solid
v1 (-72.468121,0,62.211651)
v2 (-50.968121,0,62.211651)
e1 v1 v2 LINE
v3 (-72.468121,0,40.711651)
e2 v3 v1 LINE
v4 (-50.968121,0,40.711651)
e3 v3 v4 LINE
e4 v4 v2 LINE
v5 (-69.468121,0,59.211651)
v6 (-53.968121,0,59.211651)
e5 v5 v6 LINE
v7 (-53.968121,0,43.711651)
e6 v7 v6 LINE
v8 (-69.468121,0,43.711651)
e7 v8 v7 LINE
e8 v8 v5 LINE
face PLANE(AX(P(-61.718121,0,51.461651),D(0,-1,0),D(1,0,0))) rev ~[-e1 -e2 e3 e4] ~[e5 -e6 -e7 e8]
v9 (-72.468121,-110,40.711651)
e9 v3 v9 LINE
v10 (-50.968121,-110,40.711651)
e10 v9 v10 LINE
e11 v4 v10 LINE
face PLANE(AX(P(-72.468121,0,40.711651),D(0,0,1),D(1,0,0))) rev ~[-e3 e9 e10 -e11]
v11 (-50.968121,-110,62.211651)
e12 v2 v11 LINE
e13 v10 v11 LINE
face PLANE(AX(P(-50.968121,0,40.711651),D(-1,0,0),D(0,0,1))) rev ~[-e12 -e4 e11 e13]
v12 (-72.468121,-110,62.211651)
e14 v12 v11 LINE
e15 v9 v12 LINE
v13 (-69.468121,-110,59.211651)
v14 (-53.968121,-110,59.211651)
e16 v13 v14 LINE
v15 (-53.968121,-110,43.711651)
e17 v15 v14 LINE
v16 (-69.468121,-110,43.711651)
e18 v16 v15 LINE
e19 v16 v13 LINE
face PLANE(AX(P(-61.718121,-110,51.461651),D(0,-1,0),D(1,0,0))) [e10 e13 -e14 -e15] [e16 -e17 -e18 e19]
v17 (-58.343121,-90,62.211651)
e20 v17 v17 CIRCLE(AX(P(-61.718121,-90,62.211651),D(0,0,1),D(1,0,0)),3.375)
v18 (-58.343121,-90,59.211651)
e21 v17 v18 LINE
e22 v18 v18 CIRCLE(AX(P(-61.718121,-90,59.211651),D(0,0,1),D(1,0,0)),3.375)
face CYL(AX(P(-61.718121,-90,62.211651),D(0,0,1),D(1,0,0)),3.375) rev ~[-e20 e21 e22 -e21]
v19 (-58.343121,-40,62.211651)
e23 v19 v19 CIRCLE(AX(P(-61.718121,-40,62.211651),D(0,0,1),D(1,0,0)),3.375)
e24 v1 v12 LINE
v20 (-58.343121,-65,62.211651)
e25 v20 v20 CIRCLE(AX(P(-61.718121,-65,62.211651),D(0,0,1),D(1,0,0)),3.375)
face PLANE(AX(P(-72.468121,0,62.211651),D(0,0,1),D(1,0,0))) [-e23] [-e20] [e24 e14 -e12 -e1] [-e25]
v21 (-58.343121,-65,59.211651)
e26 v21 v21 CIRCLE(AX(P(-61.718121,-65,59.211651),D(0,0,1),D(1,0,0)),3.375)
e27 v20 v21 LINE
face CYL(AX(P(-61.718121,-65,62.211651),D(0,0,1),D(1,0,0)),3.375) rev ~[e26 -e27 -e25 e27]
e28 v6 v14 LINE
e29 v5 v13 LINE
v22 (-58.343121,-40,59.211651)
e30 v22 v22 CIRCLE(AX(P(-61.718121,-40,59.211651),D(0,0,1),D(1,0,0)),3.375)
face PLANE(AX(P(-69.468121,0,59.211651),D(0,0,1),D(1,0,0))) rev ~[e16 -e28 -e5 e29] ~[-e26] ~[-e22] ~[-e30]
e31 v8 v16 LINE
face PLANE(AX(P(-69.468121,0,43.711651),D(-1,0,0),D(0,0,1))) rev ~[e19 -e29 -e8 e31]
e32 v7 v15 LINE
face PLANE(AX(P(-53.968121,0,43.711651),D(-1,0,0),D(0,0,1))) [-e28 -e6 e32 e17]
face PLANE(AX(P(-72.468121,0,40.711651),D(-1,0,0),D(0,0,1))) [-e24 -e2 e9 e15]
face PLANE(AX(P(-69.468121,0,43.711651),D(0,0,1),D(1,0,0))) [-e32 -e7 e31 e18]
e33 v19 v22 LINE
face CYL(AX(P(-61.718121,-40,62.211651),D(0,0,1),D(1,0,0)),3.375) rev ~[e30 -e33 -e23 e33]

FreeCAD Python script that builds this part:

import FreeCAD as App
import Part
import Sketcher
from FreeCAD import Vector

doc = App.newDocument("Part")
params = doc.addObject("Spreadsheet::Sheet", "Params")
for row, (alias, value) in enumerate([
    ("sketch1_width", "21.5 mm"),
    ("sketch1_width2", "15.5 mm"),
    ("pad1_length", "110 mm"),
    ("sketch2_diameter", "6.75 mm"),
    ("pocket1_length", "5 mm"),
], start=1):
    params.set(f"A{row}", alias)
    params.set(f"B{row}", "=" + value)
    params.setAlias(f"B{row}", alias)

body = doc.addObject("PartDesign::Body", "Body")

sketch1 = body.newObject("Sketcher::SketchObject", "Sketch")
sketch1.AttachmentSupport = (doc.getObject("XZ_Plane"), [""])
sketch1.MapMode = "FlatFace"
sketch1.addGeometry(Part.LineSegment(Vector(-72, 62, 0), Vector(-72, 41, 0)), False)
sketch1.addGeometry(Part.LineSegment(Vector(-72, 41, 0), Vector(-51, 41, 0)), False)
sketch1.addGeometry(Part.LineSegment(Vector(-51, 41, 0), Vector(-51, 62, 0)), False)
sketch1.addGeometry(Part.LineSegment(Vector(-51, 62, 0), Vector(-72, 62, 0)), False)
sketch1.addGeometry(Part.LineSegment(Vector(-54, 44, 0), Vector(-69, 44, 0)), False)
sketch1.addGeometry(Part.LineSegment(Vector(-69, 44, 0), Vector(-69, 59, 0)), False)
sketch1.addGeometry(Part.LineSegment(Vector(-69, 59, 0), Vector(-54, 59, 0)), False)
sketch1.addGeometry(Part.LineSegment(Vector(-54, 59, 0), Vector(-54, 44, 0)), False)
sketch1.addConstraint(Sketcher.Constraint("Coincident", 0, 2, 1, 1))
sketch1.addConstraint(Sketcher.Constraint("Coincident", 1, 2, 2, 1))
sketch1.addConstraint(Sketcher.Constraint("Coincident", 2, 2, 3, 1))
sketch1.addConstraint(Sketcher.Constraint("Coincident", 3, 2, 0, 1))
sketch1.addConstraint(Sketcher.Constraint("Coincident", 4, 2, 5, 1))
sketch1.addConstraint(Sketcher.Constraint("Coincident", 5, 2, 6, 1))
sketch1.addConstraint(Sketcher.Constraint("Coincident", 6, 2, 7, 1))
sketch1.addConstraint(Sketcher.Constraint("Coincident", 7, 2, 4, 1))
sketch1.addConstraint(Sketcher.Constraint("Vertical", 0))
sketch1.addConstraint(Sketcher.Constraint("Horizontal", 1))
sketch1.addConstraint(Sketcher.Constraint("Vertical", 2))
sketch1.addConstraint(Sketcher.Constraint("Horizontal", 3))
sketch1.addConstraint(Sketcher.Constraint("Horizontal", 4))
sketch1.addConstraint(Sketcher.Constraint("Vertical", 5))
sketch1.addConstraint(Sketcher.Constraint("Horizontal", 6))
sketch1.addConstraint(Sketcher.Constraint("Vertical", 7))
sketch1.addConstraint(Sketcher.Constraint("Equal", 3, 0))
sketch1.addConstraint(Sketcher.Constraint("Equal", 6, 5))
sketch1.addConstraint(Sketcher.Constraint("DistanceX", 1, 1, 1, 2, 21.5))
sketch1.addConstraint(Sketcher.Constraint("DistanceX", 4, 2, 4, 1, 15.5))
sketch1.addConstraint(Sketcher.Constraint("DistanceX", 0, 2, 4, 2, 3.0))
sketch1.addConstraint(Sketcher.Constraint("DistanceY", 0, 2, 4, 2, 3.0))
sketch1.addConstraint(Sketcher.Constraint("DistanceX", 0, 2, -1, 1, 72.468121))
sketch1.addConstraint(Sketcher.Constraint("DistanceY", -1, 1, 0, 2, 40.711651))
sketch1.setExpression("Constraints[18]", "Params.sketch1_width")
sketch1.setExpression("Constraints[19]", "Params.sketch1_width2")
pad1 = body.newObject("PartDesign::Pad", "Pad")
pad1.Profile = sketch1
pad1.setExpression("Length", "Params.pad1_length")

sketch2 = body.newObject("Sketcher::SketchObject", "Sketch001")
sketch2.AttachmentSupport = (doc.getObject("XY_Plane"), [""])
sketch2.MapMode = "FlatFace"
sketch2.AttachmentOffset = App.Placement(Vector(0, 0, 62.211651), App.Rotation())
sketch2.addGeometry(Part.Circle(Vector(-61.7, -90, 0), Vector(0, 0, 1), 3.4), False)
sketch2.addGeometry(Part.Circle(Vector(-61.7, -65, 0), Vector(0, 0, 1), 3.4), False)
sketch2.addGeometry(Part.Circle(Vector(-61.7, -40, 0), Vector(0, 0, 1), 3.4), False)
sketch2.addConstraint(Sketcher.Constraint("Equal", 0, 1))
sketch2.addConstraint(Sketcher.Constraint("Equal", 1, 2))
sketch2.addConstraint(Sketcher.Constraint("Vertical", 0, 3, 1, 3))
sketch2.addConstraint(Sketcher.Constraint("Vertical", 1, 3, 2, 3))
sketch2.addConstraint(Sketcher.Constraint("Diameter", 0, 6.75))
sketch2.addConstraint(Sketcher.Constraint("DistanceY", 0, 3, -1, 1, 90.0))
sketch2.addConstraint(Sketcher.Constraint("DistanceY", 1, 3, -1, 1, 65.0))
sketch2.addConstraint(Sketcher.Constraint("DistanceY", 2, 3, -1, 1, 40.0))
sketch2.addConstraint(Sketcher.Constraint("DistanceX", 0, 3, -1, 1, 61.718121))
sketch2.setExpression("Constraints[4]", "Params.sketch2_diameter")
pocket1 = body.newObject("PartDesign::Pocket", "Pocket")
pocket1.Profile = sketch2
pocket1.setExpression("Length", "Params.pocket1_length")

doc.recompute()
